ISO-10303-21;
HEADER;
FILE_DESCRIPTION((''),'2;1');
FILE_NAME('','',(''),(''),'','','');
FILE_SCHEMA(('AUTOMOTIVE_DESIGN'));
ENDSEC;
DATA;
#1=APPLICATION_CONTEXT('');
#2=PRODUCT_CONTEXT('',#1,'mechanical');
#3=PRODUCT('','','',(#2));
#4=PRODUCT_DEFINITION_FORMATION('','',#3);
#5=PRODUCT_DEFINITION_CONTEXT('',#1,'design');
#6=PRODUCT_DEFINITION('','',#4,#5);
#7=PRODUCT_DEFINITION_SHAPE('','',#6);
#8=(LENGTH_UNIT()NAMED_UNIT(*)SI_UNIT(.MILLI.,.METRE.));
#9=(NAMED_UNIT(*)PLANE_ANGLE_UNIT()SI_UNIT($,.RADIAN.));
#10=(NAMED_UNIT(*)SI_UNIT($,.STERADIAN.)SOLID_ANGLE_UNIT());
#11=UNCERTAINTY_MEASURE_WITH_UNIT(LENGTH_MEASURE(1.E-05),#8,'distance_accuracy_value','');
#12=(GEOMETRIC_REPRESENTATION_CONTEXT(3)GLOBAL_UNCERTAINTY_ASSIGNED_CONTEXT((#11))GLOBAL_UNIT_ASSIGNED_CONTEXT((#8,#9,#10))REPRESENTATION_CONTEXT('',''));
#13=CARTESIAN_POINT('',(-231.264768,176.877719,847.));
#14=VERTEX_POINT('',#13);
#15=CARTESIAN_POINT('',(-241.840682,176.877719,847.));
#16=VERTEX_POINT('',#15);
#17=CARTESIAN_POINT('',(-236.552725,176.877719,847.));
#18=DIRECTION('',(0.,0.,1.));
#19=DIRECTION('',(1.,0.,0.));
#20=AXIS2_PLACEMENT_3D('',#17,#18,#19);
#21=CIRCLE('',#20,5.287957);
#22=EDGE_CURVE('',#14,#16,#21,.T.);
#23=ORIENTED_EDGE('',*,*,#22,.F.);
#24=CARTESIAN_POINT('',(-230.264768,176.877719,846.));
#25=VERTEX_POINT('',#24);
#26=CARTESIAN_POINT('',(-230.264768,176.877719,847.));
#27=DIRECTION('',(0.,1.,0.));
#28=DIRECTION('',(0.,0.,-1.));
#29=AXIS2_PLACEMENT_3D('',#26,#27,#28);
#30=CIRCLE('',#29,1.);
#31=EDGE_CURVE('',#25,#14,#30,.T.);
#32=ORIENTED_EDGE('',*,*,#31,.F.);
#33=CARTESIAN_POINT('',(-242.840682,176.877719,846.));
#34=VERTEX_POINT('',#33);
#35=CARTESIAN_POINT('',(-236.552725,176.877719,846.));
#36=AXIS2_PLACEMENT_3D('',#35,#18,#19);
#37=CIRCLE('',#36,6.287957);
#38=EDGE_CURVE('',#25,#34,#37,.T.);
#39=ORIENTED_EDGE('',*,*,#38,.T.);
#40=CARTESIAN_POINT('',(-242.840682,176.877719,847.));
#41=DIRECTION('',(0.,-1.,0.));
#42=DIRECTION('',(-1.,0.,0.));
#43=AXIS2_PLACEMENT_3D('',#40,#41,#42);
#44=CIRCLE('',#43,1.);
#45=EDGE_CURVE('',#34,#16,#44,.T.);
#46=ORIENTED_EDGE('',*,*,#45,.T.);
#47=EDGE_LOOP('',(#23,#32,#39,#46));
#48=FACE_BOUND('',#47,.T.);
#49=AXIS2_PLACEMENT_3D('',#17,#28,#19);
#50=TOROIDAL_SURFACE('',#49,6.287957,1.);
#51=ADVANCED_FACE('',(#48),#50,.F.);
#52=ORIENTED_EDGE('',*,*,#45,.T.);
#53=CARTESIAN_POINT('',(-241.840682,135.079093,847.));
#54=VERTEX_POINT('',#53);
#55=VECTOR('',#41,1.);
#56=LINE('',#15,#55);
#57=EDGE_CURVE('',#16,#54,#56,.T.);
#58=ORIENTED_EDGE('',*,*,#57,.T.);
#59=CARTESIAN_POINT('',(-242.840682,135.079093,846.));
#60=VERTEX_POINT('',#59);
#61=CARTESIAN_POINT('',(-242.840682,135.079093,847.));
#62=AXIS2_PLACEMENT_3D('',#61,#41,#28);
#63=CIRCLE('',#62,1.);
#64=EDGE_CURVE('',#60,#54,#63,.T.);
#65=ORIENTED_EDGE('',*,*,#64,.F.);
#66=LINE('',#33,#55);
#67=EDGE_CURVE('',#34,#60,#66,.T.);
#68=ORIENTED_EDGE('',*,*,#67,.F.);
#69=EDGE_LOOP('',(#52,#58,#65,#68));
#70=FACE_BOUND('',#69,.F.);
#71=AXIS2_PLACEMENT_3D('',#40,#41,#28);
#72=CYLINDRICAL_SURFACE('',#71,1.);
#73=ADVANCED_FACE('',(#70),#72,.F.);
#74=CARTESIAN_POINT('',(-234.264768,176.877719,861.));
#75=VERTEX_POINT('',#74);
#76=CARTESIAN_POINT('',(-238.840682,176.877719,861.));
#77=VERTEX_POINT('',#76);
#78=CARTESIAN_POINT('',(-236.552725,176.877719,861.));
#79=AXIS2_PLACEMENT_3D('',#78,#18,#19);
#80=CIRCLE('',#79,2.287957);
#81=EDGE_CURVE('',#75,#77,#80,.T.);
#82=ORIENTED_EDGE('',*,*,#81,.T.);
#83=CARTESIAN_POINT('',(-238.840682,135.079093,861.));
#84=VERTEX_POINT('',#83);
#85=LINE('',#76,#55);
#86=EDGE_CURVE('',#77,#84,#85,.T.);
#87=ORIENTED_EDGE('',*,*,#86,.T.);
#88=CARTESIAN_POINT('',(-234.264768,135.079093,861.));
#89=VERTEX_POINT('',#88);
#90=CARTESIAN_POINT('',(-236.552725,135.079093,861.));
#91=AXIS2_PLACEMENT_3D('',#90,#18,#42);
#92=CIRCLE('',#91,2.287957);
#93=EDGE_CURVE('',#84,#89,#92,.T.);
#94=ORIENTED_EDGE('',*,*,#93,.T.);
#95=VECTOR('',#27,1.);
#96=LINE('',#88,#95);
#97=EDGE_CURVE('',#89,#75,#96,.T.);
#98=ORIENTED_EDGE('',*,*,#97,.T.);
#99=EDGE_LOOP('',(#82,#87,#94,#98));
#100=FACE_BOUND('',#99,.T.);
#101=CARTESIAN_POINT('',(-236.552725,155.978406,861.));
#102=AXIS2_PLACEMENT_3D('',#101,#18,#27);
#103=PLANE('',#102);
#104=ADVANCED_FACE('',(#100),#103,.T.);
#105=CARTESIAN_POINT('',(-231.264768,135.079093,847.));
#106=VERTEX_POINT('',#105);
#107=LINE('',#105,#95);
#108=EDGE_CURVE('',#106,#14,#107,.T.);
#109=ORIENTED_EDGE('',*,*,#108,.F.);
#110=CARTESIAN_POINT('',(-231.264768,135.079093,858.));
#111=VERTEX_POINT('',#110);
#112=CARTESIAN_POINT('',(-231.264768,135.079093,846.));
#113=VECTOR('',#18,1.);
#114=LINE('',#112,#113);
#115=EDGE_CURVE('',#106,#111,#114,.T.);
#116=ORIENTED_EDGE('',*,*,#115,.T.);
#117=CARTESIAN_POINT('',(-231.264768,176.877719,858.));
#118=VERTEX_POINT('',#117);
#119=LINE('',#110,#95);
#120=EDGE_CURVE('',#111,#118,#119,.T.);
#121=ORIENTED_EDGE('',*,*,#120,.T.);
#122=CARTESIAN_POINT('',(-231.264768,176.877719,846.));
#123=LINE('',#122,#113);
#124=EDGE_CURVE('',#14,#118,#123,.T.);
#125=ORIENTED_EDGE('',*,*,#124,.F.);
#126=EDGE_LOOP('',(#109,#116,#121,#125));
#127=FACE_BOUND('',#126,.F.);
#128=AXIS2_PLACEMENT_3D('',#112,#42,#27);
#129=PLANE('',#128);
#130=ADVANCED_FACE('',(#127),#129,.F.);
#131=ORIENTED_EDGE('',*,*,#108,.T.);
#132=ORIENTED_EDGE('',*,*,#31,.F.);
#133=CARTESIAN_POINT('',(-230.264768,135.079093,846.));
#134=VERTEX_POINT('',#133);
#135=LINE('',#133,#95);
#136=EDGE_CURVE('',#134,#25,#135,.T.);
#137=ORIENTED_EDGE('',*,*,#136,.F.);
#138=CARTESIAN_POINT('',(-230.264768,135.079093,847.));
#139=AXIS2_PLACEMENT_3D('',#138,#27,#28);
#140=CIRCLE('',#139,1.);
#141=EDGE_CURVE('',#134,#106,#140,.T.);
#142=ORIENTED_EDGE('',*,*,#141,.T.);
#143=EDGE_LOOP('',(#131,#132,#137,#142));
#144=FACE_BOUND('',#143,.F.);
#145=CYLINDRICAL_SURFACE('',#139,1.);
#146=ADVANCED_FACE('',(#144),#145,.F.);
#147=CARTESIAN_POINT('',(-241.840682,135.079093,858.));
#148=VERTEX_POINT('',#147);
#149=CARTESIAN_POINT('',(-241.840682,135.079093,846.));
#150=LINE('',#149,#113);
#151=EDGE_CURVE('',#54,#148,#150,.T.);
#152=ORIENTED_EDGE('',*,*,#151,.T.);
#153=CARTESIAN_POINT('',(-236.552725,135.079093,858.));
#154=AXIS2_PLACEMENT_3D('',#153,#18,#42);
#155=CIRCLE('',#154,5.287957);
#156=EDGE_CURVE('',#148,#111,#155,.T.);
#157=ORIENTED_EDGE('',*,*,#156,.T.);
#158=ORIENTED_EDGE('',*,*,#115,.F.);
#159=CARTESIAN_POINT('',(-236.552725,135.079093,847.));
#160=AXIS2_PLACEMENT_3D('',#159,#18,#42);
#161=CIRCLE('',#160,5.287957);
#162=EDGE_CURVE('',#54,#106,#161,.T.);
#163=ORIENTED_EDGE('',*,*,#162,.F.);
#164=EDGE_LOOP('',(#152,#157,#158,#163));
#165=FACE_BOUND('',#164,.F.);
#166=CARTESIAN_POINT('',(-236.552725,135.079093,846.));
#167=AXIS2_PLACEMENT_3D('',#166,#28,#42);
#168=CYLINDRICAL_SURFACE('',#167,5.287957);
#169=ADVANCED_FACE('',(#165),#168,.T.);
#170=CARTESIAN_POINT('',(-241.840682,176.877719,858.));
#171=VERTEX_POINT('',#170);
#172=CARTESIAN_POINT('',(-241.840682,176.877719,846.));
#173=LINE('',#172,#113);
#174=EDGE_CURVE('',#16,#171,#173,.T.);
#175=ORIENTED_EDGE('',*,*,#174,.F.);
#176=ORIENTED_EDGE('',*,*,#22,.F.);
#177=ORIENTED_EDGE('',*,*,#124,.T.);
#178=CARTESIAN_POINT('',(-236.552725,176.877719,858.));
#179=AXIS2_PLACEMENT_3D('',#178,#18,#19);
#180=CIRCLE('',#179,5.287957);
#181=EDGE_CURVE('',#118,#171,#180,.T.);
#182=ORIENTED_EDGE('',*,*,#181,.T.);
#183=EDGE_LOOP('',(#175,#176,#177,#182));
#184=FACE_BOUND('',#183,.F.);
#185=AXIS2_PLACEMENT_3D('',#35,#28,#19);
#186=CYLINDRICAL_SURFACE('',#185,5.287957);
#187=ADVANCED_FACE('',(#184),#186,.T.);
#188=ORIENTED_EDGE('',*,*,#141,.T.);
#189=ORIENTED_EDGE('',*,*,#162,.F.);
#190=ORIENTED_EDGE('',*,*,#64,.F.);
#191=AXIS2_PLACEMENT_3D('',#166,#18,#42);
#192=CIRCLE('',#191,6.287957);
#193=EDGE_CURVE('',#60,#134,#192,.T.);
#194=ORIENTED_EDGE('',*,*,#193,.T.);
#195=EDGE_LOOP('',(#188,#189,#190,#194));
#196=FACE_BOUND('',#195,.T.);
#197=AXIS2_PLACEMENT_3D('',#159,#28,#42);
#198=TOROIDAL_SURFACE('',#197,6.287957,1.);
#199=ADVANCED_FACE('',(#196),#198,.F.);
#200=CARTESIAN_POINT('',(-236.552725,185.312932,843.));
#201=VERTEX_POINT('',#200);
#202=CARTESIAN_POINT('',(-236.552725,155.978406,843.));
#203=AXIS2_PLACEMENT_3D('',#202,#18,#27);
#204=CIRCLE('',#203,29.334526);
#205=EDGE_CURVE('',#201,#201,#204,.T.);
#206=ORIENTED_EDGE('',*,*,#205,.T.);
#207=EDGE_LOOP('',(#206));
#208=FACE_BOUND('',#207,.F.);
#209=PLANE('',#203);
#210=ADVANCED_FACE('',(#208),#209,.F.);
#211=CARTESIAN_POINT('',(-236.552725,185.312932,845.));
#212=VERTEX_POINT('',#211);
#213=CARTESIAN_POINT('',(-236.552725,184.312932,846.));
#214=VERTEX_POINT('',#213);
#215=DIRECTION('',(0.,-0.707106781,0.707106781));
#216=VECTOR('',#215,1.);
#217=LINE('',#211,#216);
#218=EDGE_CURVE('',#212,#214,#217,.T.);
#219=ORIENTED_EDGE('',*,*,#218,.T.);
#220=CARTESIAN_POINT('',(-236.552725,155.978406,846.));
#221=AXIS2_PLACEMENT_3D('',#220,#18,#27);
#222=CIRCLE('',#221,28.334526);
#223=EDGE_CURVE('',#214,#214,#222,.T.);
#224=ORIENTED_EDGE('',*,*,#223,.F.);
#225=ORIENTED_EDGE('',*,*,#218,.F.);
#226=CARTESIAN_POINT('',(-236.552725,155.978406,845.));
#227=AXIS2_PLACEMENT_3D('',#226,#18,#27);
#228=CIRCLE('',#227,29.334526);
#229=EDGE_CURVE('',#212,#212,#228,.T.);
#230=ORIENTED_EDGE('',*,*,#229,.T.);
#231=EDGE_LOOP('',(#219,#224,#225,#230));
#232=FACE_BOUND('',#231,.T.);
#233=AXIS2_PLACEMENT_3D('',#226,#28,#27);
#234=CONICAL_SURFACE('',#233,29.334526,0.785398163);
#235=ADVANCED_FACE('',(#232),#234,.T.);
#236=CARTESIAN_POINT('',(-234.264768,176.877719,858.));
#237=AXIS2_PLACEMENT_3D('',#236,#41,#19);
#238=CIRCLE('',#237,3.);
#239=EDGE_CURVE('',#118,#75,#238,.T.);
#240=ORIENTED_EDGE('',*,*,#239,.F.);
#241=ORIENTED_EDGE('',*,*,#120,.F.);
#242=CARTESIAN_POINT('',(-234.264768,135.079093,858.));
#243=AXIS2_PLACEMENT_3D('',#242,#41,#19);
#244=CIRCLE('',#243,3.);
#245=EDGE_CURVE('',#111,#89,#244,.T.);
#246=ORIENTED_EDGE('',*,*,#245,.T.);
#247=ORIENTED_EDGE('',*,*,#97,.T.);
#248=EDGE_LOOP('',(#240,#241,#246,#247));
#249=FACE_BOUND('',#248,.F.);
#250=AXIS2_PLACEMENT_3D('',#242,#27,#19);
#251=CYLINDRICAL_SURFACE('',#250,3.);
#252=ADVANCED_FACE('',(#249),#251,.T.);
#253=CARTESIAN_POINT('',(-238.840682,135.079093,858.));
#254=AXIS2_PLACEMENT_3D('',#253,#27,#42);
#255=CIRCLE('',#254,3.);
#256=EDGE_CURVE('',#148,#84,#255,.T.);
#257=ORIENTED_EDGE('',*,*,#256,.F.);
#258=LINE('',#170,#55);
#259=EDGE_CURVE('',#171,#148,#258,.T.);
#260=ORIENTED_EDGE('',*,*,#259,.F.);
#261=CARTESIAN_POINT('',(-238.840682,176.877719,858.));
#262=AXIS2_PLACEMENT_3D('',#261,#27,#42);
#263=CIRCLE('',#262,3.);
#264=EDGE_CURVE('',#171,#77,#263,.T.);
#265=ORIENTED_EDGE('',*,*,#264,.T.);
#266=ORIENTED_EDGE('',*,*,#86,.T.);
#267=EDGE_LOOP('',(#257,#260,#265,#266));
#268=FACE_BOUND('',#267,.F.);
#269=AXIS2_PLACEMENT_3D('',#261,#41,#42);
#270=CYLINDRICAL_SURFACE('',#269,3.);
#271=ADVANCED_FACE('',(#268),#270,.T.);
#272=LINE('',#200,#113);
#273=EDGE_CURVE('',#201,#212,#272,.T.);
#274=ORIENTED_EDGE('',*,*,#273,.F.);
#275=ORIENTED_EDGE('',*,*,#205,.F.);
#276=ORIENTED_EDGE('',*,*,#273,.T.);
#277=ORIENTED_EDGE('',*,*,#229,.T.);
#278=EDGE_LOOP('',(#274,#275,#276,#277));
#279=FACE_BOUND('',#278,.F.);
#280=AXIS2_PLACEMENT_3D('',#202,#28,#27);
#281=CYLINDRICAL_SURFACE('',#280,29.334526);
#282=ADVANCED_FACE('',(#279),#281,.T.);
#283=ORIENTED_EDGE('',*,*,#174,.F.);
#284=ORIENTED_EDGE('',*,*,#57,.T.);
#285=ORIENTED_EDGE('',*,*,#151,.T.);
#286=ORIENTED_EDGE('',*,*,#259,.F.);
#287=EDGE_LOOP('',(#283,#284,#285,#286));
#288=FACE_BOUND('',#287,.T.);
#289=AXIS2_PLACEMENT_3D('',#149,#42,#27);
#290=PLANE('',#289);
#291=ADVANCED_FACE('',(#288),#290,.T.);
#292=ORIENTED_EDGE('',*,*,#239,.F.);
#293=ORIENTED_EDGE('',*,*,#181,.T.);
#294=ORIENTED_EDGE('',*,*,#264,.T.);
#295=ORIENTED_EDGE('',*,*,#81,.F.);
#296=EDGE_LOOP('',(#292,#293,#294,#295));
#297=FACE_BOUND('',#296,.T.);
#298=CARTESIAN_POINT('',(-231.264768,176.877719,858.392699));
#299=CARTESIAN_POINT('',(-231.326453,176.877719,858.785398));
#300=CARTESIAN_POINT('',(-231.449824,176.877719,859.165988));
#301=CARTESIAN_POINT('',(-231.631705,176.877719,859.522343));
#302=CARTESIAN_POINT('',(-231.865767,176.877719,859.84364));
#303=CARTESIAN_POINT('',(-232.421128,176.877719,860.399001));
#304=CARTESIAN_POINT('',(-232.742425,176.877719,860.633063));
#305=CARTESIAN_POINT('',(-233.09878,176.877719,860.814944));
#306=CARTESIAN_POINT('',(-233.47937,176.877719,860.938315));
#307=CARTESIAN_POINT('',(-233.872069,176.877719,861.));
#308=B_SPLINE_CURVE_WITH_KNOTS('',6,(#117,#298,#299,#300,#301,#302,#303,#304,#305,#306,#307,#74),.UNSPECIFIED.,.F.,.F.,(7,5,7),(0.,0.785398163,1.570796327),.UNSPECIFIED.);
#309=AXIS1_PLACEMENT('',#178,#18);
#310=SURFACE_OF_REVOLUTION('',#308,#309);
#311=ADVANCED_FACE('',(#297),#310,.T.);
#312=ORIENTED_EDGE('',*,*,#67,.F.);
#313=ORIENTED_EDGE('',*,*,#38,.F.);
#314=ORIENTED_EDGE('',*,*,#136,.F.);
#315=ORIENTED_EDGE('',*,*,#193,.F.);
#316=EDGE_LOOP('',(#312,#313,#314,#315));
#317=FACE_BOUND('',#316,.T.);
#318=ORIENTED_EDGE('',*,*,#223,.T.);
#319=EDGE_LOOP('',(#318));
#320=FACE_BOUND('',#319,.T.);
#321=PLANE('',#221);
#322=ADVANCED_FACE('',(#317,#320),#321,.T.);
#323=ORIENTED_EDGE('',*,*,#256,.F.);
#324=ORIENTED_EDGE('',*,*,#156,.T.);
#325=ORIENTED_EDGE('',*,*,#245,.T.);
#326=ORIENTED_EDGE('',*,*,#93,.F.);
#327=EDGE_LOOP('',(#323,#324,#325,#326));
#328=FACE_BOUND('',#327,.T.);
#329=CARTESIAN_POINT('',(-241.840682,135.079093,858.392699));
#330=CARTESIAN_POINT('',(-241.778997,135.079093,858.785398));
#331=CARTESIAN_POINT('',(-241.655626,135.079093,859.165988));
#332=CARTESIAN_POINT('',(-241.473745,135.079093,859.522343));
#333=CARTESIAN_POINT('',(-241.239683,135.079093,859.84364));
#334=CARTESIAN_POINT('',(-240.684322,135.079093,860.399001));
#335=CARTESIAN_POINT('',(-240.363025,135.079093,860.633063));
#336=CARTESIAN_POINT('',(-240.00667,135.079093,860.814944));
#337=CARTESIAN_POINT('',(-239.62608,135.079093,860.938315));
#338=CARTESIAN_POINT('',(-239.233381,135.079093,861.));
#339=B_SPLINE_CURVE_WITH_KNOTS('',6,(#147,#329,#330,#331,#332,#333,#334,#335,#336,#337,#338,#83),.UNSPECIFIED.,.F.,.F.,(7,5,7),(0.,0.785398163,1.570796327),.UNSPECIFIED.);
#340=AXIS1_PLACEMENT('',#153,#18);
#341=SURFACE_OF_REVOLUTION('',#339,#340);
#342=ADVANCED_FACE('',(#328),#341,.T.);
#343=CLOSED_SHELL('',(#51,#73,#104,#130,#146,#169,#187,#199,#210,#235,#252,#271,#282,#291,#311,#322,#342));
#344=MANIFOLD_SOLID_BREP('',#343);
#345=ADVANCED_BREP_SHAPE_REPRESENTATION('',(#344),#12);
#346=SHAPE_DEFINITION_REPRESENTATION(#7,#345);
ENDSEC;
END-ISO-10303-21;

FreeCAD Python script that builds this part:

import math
import FreeCAD as App
import Part
import Sketcher
from FreeCAD import Vector
Q = App.Units.Quantity


def edges_at(feature, points):
    """Names of the edges that pass closest to the given points."""
    edges = feature.Shape.Edges
    near = lambda p: min(range(len(edges)), key=lambda i: edges[i].distToShape(Part.Vertex(*p))[0])
    return sorted({f"Edge{near(p) + 1}" for p in points})

doc = App.newDocument("Part")
body = doc.addObject("PartDesign::Body", "Body")

sketch1 = body.newObject("Sketcher::SketchObject", "Sketch")
sketch1.AttachmentSupport = (doc.getObject("XY_Plane"), [""])
sketch1.MapMode = "FlatFace"
sketch1.AttachmentOffset = App.Placement(Vector(0, 0, 843), App.Rotation())
sketch1.addGeometry(Part.Circle(Vector(-237, 156, 0), Vector(0, 0, 1), 29), False)
sketch1.addConstraint([
    Sketcher.Constraint("Diameter", 0, Q("58.669052 mm")),
    Sketcher.Constraint("DistanceX", 0, 3, -1, 1, Q("236.552725 mm")),
    Sketcher.Constraint("DistanceY", -1, 1, 0, 3, Q("155.978406 mm")),
])
pad1 = body.newObject("PartDesign::Pad", "Pad")
pad1.Profile = sketch1
pad1.Length = 3

sketch2 = body.newObject("Sketcher::SketchObject", "Sketch001")
sketch2.AttachmentSupport = (doc.getObject("XY_Plane"), [""])
sketch2.MapMode = "FlatFace"
sketch2.AttachmentOffset = App.Placement(Vector(0, 0, 846), App.Rotation())
sketch2.addGeometry([
    Part.ArcOfCircle(Part.Circle(Vector(-237, 135, 0), Vector(0, 0, 1), 5), math.radians(180), math.radians(360)),
    Part.LineSegment(Vector(-231, 135, 0), Vector(-231, 177, 0)),
    Part.ArcOfCircle(Part.Circle(Vector(-237, 177, 0), Vector(0, 0, 1), 5), math.radians(0), math.radians(180)),
    Part.LineSegment(Vector(-242, 177, 0), Vector(-242, 135, 0)),
], False)
sketch2.addConstraint([
    Sketcher.Constraint("Tangent", 0, 2, 1, 1),
    Sketcher.Constraint("Tangent", 1, 2, 2, 1),
    Sketcher.Constraint("Tangent", 2, 2, 3, 1),
    Sketcher.Constraint("Tangent", 3, 2, 0, 1),
    Sketcher.Constraint("Vertical", 1),
    Sketcher.Constraint("Vertical", 3),
    Sketcher.Constraint("Radius", 0, Q("5.287957 mm")),
    Sketcher.Constraint("DistanceY", 1, 1, 1, 2, Q("41.798626 mm")),
    Sketcher.Constraint("DistanceY", -1, 1, 2, 3, Q("176.877719 mm")),
    Sketcher.Constraint("DistanceX", 0, 2, -1, 1, Q("231.264768 mm")),
])
pad2 = body.newObject("PartDesign::Pad", "Pad001")
pad2.Profile = sketch2
pad2.Length = 15
doc.recompute()

chamfer = body.newObject("PartDesign::Chamfer", "Chamfer")
chamfer.Base = (pad2, edges_at(pad2, [(-236.553, 126.644, 846)]))
chamfer.Size = 1
doc.recompute()

fillet = body.newObject("PartDesign::Fillet", "Fillet")
fillet.Base = (chamfer, edges_at(chamfer, [(-231.265, 155.978, 846)]))
fillet.Radius = 1
doc.recompute()

fillet2 = body.newObject("PartDesign::Fillet", "Fillet001")
fillet2.Base = (fillet, edges_at(fillet, [(-231.265, 155.978, 861)]))
fillet2.Radius = 3

doc.recompute()
